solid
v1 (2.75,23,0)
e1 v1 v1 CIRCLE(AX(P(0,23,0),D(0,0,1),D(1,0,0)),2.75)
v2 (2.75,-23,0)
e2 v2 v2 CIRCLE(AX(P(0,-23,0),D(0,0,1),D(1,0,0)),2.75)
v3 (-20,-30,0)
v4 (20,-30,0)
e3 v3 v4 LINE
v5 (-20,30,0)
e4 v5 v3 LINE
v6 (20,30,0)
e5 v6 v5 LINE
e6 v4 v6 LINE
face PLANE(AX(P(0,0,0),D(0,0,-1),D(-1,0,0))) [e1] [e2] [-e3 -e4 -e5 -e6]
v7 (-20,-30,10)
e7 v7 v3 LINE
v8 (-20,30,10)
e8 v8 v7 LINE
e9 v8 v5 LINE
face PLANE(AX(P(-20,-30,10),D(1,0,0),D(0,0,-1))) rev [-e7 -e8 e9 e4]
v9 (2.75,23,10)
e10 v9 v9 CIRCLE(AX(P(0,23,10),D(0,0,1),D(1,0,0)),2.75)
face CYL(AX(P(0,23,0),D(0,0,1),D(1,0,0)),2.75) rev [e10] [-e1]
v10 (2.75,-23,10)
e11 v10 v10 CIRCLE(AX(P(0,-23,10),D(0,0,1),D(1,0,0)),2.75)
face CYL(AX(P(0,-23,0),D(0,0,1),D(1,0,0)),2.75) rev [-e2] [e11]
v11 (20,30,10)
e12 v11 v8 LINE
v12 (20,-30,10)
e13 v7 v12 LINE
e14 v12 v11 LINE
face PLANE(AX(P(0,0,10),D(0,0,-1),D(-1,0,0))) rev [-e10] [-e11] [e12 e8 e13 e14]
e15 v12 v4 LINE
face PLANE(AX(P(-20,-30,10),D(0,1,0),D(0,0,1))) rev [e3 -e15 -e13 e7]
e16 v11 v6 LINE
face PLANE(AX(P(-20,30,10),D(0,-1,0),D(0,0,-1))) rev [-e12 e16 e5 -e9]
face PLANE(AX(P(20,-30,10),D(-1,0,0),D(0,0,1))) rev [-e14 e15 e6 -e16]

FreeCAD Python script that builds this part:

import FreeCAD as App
import Part
import Sketcher

V = App.Vector

doc = App.newDocument("Part")
body = doc.addObject("PartDesign::Body", "Body")

# Sketch on XY plane
sketch1 = doc.addObject("Sketcher::SketchObject", "Sketch")
body.addObject(sketch1)
sketch1.AttachmentSupport = (doc.XY_Plane, [""])
sketch1.MapMode = "FlatFace"
sketch1.addGeometry([
    Part.LineSegment(V(-20, 30, 0), V(-20, -30, 0)),
    Part.LineSegment(V(-20, -30, 0), V(20, -30, 0)),
    Part.LineSegment(V(20, -30, 0), V(20, 30, 0)),
    Part.LineSegment(V(20, 30, 0), V(-20, 30, 0)),
], False)
sketch1.addConstraint([
    Sketcher.Constraint("Coincident", 0, 2, 1, 1),
    Sketcher.Constraint("Coincident", 1, 2, 2, 1),
    Sketcher.Constraint("Coincident", 2, 2, 3, 1),
    Sketcher.Constraint("Coincident", 3, 2, 0, 1),
    Sketcher.Constraint("Vertical", 0),
    Sketcher.Constraint("Horizontal", 1),
    Sketcher.Constraint("Vertical", 2),
    Sketcher.Constraint("Horizontal", 3),
    Sketcher.Constraint("Symmetric", 0, 2, 2, 2, -1, 1),
    Sketcher.Constraint("DistanceX", 1, 1, 1, 2, 40.0),
    Sketcher.Constraint("DistanceY", 0, 2, 0, 1, 60.0),
])
pad1 = doc.addObject("PartDesign::Pad", "Pad")
body.addObject(pad1)
pad1.Profile = sketch1
pad1.Length = 10

# Sketch on XY plane
sketch2 = doc.addObject("Sketcher::SketchObject", "Sketch001")
body.addObject(sketch2)
sketch2.AttachmentSupport = (doc.XY_Plane, [""])
sketch2.MapMode = "FlatFace"
sketch2.AttachmentOffset = App.Placement(V(0, 0, 10), App.Rotation())
sketch2.addGeometry([
    Part.Circle(V(0, -23, 0), V(0, 0, 1), 2.8),
    Part.Circle(V(0, 23, 0), V(0, 0, 1), 2.8),
], False)
sketch2.addConstraint([
    Sketcher.Constraint("Equal", 0, 1),
    Sketcher.Constraint("Symmetric", 0, 3, 1, 3, -1, 1),
    Sketcher.Constraint("PointOnObject", 0, 3, -2),
    Sketcher.Constraint("Diameter", 0, 5.5),
    Sketcher.Constraint("DistanceY", 0, 3, -1, 1, 23.0),
])
pocket1 = doc.addObject("PartDesign::Pocket", "Pocket")
body.addObject(pocket1)
pocket1.Profile = sketch2
pocket1.Length = 10

doc.recompute()
